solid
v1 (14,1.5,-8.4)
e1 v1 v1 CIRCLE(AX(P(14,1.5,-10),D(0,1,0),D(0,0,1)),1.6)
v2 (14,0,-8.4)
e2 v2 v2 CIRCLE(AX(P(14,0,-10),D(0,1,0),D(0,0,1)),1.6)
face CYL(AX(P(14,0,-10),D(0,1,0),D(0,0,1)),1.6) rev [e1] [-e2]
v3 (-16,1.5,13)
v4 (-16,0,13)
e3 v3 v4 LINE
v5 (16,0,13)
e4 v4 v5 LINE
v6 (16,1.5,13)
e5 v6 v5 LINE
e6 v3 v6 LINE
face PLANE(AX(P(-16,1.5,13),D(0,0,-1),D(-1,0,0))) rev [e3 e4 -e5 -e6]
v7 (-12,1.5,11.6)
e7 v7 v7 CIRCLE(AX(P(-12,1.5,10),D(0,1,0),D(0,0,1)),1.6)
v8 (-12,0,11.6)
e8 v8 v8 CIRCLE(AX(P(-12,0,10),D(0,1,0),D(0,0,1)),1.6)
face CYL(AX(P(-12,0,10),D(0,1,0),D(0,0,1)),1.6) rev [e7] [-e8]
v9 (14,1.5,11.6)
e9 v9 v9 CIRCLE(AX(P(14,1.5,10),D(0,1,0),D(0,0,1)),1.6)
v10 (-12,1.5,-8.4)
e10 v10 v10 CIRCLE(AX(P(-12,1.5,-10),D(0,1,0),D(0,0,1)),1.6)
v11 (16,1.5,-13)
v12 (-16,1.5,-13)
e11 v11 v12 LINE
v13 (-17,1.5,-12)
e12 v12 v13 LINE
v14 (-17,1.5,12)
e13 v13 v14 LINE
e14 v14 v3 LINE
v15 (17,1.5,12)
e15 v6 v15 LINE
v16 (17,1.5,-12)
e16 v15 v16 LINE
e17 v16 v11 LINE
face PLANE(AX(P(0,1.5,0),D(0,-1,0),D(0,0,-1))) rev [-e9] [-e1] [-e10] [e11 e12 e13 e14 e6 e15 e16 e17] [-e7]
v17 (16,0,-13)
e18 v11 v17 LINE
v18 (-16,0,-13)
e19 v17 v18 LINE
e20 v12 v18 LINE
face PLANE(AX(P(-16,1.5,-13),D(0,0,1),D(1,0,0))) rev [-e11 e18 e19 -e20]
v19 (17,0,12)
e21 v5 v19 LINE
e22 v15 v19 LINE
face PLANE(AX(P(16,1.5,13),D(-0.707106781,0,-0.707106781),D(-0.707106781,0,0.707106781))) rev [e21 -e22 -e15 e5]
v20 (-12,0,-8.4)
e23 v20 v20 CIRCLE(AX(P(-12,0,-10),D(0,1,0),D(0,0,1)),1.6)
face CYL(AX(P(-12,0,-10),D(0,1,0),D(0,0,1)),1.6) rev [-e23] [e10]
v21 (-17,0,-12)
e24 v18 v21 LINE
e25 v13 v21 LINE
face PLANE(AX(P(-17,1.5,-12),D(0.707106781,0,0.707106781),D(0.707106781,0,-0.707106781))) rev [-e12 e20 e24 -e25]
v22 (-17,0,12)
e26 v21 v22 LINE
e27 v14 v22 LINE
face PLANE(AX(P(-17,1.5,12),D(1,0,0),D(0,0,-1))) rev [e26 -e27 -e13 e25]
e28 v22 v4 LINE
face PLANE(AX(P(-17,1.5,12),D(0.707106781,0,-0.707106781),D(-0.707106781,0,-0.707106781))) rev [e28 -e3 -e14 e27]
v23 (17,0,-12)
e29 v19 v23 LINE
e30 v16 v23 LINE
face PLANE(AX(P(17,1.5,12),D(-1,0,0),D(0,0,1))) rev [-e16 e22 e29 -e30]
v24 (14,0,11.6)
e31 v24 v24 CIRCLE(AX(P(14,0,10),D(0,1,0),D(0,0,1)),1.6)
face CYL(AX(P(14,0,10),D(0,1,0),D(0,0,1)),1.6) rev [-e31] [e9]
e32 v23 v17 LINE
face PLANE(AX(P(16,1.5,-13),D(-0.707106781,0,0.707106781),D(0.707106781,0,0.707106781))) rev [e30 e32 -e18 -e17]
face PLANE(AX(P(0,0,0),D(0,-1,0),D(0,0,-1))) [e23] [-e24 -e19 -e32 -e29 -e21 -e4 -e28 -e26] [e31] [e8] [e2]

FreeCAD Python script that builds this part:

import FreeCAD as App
import Part
import Sketcher

V = App.Vector

doc = App.newDocument("Part")
body = doc.addObject("PartDesign::Body", "Body")

sketch1 = doc.addObject("Sketcher::SketchObject", "Sketch")
body.addObject(sketch1)
sketch1.AttachmentSupport = (doc.XZ_Plane, [""])
sketch1.MapMode = "FlatFace"
sketch1.addGeometry([
    Part.LineSegment(V(-16, -13, 0), V(-17, -12, 0)),
    Part.LineSegment(V(-17, -12, 0), V(-17, 12, 0)),
    Part.LineSegment(V(-17, 12, 0), V(-16, 13, 0)),
    Part.LineSegment(V(-16, 13, 0), V(16, 13, 0)),
    Part.LineSegment(V(16, 13, 0), V(17, 12, 0)),
    Part.LineSegment(V(17, 12, 0), V(17, -12, 0)),
    Part.LineSegment(V(17, -12, 0), V(16, -13, 0)),
    Part.LineSegment(V(16, -13, 0), V(-16, -13, 0)),
], False)
sketch1.addConstraint([
    Sketcher.Constraint("Coincident", 0, 2, 1, 1),
    Sketcher.Constraint("Coincident", 1, 2, 2, 1),
    Sketcher.Constraint("Coincident", 2, 2, 3, 1),
    Sketcher.Constraint("Coincident", 3, 2, 4, 1),
    Sketcher.Constraint("Coincident", 4, 2, 5, 1),
    Sketcher.Constraint("Coincident", 5, 2, 6, 1),
    Sketcher.Constraint("Coincident", 6, 2, 7, 1),
    Sketcher.Constraint("Coincident", 7, 2, 0, 1),
    Sketcher.Constraint("Vertical", 1),
    Sketcher.Constraint("Horizontal", 3),
    Sketcher.Constraint("Vertical", 5),
    Sketcher.Constraint("Horizontal", 7),
    Sketcher.Constraint("Symmetric", 0, 2, 4, 2, -1, 1),
    Sketcher.Constraint("Symmetric", 2, 2, 6, 2, -1, 1),
    Sketcher.Constraint("Perpendicular", 0, 2),
    Sketcher.Constraint("Perpendicular", 2, 4),
    Sketcher.Constraint("Perpendicular", 4, 6),
    Sketcher.Constraint("Horizontal", 1, 2, 4, 2),
    Sketcher.Constraint("Vertical", 3, 2, 6, 2),
    Sketcher.Constraint("DistanceX", 3, 1, 3, 2, 32.0),
    Sketcher.Constraint("DistanceY", 1, 1, 1, 2, 24.0),
    Sketcher.Constraint("DistanceX", 0, 2, -1, 1, 17.0),
])
pad1 = doc.addObject("PartDesign::Pad", "Pad")
body.addObject(pad1)
pad1.Profile = sketch1
pad1.Length = 1.5
pad1.Reversed = True

sketch2 = doc.addObject("Sketcher::SketchObject", "Sketch001")
body.addObject(sketch2)
sketch2.AttachmentSupport = (doc.XZ_Plane, [""])
sketch2.MapMode = "FlatFace"
sketch2.AttachmentOffset = App.Placement(V(0, 0, -1.5), App.Rotation())
sketch2.addGeometry([
    Part.Circle(V(14, -10, 0), V(0, 0, 1), 1.6),
    Part.Circle(V(14, 10, 0), V(0, 0, 1), 1.6),
    Part.Circle(V(-12, -10, 0), V(0, 0, 1), 1.6),
    Part.Circle(V(-12, 10, 0), V(0, 0, 1), 1.6),
], False)
sketch2.addConstraint([
    Sketcher.Constraint("Equal", 0, 1),
    Sketcher.Constraint("Equal", 1, 2),
    Sketcher.Constraint("Equal", 2, 3),
    Sketcher.Constraint("Symmetric", 0, 3, 1, 3, -1),
    Sketcher.Constraint("Symmetric", 2, 3, 3, 3, -1),
    Sketcher.Constraint("Horizontal", 0, 3, 2, 3),
    Sketcher.Constraint("Diameter", 0, 3.2),
    Sketcher.Constraint("DistanceX", -1, 1, 0, 3, 14.0),
    Sketcher.Constraint("DistanceY", 0, 3, -1, 1, 10.0),
    Sketcher.Constraint("DistanceX", 2, 3, -1, 1, 12.0),
])
pocket1 = doc.addObject("PartDesign::Pocket", "Pocket")
body.addObject(pocket1)
pocket1.Profile = sketch2
pocket1.Length = 1.5
pocket1.Reversed = True

doc.recompute()
